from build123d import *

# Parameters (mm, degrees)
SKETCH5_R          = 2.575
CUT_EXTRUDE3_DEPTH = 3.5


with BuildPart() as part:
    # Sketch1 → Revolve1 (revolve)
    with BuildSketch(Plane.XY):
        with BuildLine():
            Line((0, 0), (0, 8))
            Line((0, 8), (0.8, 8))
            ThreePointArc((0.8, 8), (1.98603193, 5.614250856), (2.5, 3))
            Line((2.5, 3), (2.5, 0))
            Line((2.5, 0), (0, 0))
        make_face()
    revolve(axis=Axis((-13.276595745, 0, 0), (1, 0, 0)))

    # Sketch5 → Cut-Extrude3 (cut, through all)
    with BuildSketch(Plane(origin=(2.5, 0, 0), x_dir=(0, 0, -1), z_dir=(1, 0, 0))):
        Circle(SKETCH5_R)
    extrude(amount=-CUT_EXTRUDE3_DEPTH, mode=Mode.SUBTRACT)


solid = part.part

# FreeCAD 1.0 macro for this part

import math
import FreeCAD as App
import Part
import Sketcher
Q = App.Units.Quantity

doc = App.newDocument("Part")
body = doc.addObject("PartDesign::Body", "Body")

sketch1 = body.newObject("Sketcher::SketchObject", "Sketch")
sketch1.AttachmentSupport = (doc.getObject("XY_Plane"), [""])
sketch1.MapMode = "FlatFace"
sketch1.addGeometry([
    Part.LineSegment(App.Vector(0, 8, 0), App.Vector(0, 0, 0)),
    Part.LineSegment(App.Vector(0, 0, 0), App.Vector(2.5, 0, 0)),
    Part.LineSegment(App.Vector(2.5, 0, 0), App.Vector(2.5, 3, 0)),
    Part.ArcOfCircle(Part.Circle(App.Vector(-7.5, 2.4, 0), App.Vector(0, 0, 1), 10), math.radians(3), math.radians(34)),
    Part.LineSegment(App.Vector(0.8, 8, 0), App.Vector(0, 8, 0)),
], False)
sketch1.addConstraint([
    Sketcher.Constraint("Coincident", 0, 2, 1, 1),
    Sketcher.Constraint("Coincident", 1, 2, 2, 1),
    Sketcher.Constraint("Coincident", 2, 2, 3, 1),
    Sketcher.Constraint("Coincident", 3, 2, 4, 1),
    Sketcher.Constraint("Coincident", 4, 2, 0, 1),
    Sketcher.Constraint("Vertical", 0),
    Sketcher.Constraint("Horizontal", 1),
    Sketcher.Constraint("Vertical", 2),
    Sketcher.Constraint("Horizontal", 4),
    Sketcher.Constraint("Coincident", 0, 2, -1, 1),
    Sketcher.Constraint("Radius", 3, Q("10 mm")),
    Sketcher.Constraint("DistanceY", 0, 2, 0, 1, Q("8 mm")),
    Sketcher.Constraint("DistanceY", 2, 1, 2, 2, Q("3 mm")),
    Sketcher.Constraint("DistanceX", 1, 1, 1, 2, Q("2.5 mm")),
    Sketcher.Constraint("DistanceX", 4, 2, 4, 1, Q("0.8 mm")),
])
revolution = body.newObject("PartDesign::Revolution", "Revolution")
revolution.Profile = sketch1
revolution.ReferenceAxis = (sketch1, ["H_Axis"])
revolution.Angle = 360

sketch2 = body.newObject("Sketcher::SketchObject", "Sketch001")
sketch2.AttachmentSupport = (doc.getObject("YZ_Plane"), [""])
sketch2.MapMode = "FlatFace"
sketch2.AttachmentOffset = App.Placement(App.Vector(0, 0, 2.5), App.Rotation())
sketch2.addGeometry(Part.Circle(App.Vector(0, 0, 0), App.Vector(0, 0, 1), 2.6), False)
sketch2.addConstraint([
    Sketcher.Constraint("Coincident", 0, 3, -1, 1),
    Sketcher.Constraint("Diameter", 0, Q("5.15 mm")),
])
pocket1 = body.newObject("PartDesign::Pocket", "Pocket")
pocket1.Profile = sketch2
pocket1.Type = "ThroughAll"

doc.recompute()
